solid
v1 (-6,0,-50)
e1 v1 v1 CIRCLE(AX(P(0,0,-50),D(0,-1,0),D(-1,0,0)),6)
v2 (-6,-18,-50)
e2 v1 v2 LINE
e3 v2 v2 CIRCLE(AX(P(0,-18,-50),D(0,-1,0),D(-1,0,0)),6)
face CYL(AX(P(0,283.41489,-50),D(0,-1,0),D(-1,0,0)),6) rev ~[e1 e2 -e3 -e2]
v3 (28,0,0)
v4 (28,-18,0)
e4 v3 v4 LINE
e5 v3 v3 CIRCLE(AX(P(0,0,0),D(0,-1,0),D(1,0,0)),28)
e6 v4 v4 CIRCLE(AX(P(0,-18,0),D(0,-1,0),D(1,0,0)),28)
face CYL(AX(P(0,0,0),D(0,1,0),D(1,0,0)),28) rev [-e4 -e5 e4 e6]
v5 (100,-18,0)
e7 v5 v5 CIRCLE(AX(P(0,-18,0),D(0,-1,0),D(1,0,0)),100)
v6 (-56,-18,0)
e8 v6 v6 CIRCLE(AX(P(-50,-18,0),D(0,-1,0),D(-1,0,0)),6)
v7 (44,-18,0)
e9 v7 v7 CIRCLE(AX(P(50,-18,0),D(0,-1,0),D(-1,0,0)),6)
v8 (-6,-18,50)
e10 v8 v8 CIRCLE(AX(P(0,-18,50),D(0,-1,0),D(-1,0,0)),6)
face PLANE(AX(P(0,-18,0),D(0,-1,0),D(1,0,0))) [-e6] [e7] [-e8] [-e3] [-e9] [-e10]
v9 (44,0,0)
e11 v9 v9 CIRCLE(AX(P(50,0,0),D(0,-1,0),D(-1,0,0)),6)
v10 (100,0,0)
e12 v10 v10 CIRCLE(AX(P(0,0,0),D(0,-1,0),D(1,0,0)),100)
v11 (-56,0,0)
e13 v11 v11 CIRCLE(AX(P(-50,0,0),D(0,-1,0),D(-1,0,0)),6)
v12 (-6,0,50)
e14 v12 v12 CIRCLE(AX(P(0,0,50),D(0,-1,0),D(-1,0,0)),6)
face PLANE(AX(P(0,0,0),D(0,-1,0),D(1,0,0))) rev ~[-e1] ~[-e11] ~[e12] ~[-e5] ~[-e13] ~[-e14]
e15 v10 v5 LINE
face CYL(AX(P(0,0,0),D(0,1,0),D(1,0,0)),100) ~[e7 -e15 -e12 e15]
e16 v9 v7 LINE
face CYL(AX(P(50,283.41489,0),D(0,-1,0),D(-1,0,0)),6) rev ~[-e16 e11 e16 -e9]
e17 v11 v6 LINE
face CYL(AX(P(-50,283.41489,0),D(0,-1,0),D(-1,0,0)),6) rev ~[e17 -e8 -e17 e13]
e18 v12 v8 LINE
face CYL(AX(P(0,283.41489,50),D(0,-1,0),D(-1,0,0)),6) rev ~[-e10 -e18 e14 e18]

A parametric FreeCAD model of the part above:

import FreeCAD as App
import Part
import Sketcher
Q = App.Units.Quantity

doc = App.newDocument("Part")
body = doc.addObject("PartDesign::Body", "Body")

sketch1 = body.newObject("Sketcher::SketchObject", "Sketch")
sketch1.AttachmentSupport = (doc.getObject("XZ_Plane"), [""])
sketch1.MapMode = "FlatFace"
sketch1.addGeometry([
    Part.Circle(App.Vector(0, 0, 0), App.Vector(0, 0, 1), 100),
    Part.Circle(App.Vector(0, 0, 0), App.Vector(0, 0, 1), 28),
], False)
sketch1.addConstraint([
    Sketcher.Constraint("Coincident", 0, 3, -1, 1),
    Sketcher.Constraint("Coincident", 1, 3, -1, 1),
    Sketcher.Constraint("Diameter", 0, Q("200 mm")),
    Sketcher.Constraint("Diameter", 1, Q("56 mm")),
])
pad1 = body.newObject("PartDesign::Pad", "Pad")
pad1.Profile = sketch1
pad1.Length = 18

sketch2 = body.newObject("Sketcher::SketchObject", "Sketch001")
sketch2.AttachmentSupport = (doc.getObject("XZ_Plane"), [""])
sketch2.MapMode = "FlatFace"
sketch2.addGeometry([
    Part.Circle(App.Vector(0, -50, 0), App.Vector(0, 0, 1), 6),
    Part.Circle(App.Vector(50, 0, 0), App.Vector(0, 0, 1), 6),
    Part.Circle(App.Vector(0, 50, 0), App.Vector(0, 0, 1), 6),
    Part.Circle(App.Vector(-50, 0, 0), App.Vector(0, 0, 1), 6),
], False)
sketch2.addConstraint([
    Sketcher.Constraint("Equal", 0, 1),
    Sketcher.Constraint("Equal", 1, 2),
    Sketcher.Constraint("Equal", 2, 3),
    Sketcher.Constraint("Symmetric", 0, 3, 2, 3, -1, 1),
    Sketcher.Constraint("Symmetric", 1, 3, 3, 3, -1, 1),
    Sketcher.Constraint("PointOnObject", 0, 3, -2),
    Sketcher.Constraint("PointOnObject", 1, 3, -1),
    Sketcher.Constraint("Diameter", 0, Q("12 mm")),
    Sketcher.Constraint("DistanceY", 0, 3, -1, 1, Q("50 mm")),
    Sketcher.Constraint("DistanceX", -1, 1, 1, 3, Q("50 mm")),
])
doc.recompute()
hole = body.newObject("PartDesign::Hole", "Hole")
hole.Profile = sketch2
hole.ThreadType = "None"
hole.Diameter = 12
hole.DepthType = "ThroughAll"
hole.Reversed = True

doc.recompute()
